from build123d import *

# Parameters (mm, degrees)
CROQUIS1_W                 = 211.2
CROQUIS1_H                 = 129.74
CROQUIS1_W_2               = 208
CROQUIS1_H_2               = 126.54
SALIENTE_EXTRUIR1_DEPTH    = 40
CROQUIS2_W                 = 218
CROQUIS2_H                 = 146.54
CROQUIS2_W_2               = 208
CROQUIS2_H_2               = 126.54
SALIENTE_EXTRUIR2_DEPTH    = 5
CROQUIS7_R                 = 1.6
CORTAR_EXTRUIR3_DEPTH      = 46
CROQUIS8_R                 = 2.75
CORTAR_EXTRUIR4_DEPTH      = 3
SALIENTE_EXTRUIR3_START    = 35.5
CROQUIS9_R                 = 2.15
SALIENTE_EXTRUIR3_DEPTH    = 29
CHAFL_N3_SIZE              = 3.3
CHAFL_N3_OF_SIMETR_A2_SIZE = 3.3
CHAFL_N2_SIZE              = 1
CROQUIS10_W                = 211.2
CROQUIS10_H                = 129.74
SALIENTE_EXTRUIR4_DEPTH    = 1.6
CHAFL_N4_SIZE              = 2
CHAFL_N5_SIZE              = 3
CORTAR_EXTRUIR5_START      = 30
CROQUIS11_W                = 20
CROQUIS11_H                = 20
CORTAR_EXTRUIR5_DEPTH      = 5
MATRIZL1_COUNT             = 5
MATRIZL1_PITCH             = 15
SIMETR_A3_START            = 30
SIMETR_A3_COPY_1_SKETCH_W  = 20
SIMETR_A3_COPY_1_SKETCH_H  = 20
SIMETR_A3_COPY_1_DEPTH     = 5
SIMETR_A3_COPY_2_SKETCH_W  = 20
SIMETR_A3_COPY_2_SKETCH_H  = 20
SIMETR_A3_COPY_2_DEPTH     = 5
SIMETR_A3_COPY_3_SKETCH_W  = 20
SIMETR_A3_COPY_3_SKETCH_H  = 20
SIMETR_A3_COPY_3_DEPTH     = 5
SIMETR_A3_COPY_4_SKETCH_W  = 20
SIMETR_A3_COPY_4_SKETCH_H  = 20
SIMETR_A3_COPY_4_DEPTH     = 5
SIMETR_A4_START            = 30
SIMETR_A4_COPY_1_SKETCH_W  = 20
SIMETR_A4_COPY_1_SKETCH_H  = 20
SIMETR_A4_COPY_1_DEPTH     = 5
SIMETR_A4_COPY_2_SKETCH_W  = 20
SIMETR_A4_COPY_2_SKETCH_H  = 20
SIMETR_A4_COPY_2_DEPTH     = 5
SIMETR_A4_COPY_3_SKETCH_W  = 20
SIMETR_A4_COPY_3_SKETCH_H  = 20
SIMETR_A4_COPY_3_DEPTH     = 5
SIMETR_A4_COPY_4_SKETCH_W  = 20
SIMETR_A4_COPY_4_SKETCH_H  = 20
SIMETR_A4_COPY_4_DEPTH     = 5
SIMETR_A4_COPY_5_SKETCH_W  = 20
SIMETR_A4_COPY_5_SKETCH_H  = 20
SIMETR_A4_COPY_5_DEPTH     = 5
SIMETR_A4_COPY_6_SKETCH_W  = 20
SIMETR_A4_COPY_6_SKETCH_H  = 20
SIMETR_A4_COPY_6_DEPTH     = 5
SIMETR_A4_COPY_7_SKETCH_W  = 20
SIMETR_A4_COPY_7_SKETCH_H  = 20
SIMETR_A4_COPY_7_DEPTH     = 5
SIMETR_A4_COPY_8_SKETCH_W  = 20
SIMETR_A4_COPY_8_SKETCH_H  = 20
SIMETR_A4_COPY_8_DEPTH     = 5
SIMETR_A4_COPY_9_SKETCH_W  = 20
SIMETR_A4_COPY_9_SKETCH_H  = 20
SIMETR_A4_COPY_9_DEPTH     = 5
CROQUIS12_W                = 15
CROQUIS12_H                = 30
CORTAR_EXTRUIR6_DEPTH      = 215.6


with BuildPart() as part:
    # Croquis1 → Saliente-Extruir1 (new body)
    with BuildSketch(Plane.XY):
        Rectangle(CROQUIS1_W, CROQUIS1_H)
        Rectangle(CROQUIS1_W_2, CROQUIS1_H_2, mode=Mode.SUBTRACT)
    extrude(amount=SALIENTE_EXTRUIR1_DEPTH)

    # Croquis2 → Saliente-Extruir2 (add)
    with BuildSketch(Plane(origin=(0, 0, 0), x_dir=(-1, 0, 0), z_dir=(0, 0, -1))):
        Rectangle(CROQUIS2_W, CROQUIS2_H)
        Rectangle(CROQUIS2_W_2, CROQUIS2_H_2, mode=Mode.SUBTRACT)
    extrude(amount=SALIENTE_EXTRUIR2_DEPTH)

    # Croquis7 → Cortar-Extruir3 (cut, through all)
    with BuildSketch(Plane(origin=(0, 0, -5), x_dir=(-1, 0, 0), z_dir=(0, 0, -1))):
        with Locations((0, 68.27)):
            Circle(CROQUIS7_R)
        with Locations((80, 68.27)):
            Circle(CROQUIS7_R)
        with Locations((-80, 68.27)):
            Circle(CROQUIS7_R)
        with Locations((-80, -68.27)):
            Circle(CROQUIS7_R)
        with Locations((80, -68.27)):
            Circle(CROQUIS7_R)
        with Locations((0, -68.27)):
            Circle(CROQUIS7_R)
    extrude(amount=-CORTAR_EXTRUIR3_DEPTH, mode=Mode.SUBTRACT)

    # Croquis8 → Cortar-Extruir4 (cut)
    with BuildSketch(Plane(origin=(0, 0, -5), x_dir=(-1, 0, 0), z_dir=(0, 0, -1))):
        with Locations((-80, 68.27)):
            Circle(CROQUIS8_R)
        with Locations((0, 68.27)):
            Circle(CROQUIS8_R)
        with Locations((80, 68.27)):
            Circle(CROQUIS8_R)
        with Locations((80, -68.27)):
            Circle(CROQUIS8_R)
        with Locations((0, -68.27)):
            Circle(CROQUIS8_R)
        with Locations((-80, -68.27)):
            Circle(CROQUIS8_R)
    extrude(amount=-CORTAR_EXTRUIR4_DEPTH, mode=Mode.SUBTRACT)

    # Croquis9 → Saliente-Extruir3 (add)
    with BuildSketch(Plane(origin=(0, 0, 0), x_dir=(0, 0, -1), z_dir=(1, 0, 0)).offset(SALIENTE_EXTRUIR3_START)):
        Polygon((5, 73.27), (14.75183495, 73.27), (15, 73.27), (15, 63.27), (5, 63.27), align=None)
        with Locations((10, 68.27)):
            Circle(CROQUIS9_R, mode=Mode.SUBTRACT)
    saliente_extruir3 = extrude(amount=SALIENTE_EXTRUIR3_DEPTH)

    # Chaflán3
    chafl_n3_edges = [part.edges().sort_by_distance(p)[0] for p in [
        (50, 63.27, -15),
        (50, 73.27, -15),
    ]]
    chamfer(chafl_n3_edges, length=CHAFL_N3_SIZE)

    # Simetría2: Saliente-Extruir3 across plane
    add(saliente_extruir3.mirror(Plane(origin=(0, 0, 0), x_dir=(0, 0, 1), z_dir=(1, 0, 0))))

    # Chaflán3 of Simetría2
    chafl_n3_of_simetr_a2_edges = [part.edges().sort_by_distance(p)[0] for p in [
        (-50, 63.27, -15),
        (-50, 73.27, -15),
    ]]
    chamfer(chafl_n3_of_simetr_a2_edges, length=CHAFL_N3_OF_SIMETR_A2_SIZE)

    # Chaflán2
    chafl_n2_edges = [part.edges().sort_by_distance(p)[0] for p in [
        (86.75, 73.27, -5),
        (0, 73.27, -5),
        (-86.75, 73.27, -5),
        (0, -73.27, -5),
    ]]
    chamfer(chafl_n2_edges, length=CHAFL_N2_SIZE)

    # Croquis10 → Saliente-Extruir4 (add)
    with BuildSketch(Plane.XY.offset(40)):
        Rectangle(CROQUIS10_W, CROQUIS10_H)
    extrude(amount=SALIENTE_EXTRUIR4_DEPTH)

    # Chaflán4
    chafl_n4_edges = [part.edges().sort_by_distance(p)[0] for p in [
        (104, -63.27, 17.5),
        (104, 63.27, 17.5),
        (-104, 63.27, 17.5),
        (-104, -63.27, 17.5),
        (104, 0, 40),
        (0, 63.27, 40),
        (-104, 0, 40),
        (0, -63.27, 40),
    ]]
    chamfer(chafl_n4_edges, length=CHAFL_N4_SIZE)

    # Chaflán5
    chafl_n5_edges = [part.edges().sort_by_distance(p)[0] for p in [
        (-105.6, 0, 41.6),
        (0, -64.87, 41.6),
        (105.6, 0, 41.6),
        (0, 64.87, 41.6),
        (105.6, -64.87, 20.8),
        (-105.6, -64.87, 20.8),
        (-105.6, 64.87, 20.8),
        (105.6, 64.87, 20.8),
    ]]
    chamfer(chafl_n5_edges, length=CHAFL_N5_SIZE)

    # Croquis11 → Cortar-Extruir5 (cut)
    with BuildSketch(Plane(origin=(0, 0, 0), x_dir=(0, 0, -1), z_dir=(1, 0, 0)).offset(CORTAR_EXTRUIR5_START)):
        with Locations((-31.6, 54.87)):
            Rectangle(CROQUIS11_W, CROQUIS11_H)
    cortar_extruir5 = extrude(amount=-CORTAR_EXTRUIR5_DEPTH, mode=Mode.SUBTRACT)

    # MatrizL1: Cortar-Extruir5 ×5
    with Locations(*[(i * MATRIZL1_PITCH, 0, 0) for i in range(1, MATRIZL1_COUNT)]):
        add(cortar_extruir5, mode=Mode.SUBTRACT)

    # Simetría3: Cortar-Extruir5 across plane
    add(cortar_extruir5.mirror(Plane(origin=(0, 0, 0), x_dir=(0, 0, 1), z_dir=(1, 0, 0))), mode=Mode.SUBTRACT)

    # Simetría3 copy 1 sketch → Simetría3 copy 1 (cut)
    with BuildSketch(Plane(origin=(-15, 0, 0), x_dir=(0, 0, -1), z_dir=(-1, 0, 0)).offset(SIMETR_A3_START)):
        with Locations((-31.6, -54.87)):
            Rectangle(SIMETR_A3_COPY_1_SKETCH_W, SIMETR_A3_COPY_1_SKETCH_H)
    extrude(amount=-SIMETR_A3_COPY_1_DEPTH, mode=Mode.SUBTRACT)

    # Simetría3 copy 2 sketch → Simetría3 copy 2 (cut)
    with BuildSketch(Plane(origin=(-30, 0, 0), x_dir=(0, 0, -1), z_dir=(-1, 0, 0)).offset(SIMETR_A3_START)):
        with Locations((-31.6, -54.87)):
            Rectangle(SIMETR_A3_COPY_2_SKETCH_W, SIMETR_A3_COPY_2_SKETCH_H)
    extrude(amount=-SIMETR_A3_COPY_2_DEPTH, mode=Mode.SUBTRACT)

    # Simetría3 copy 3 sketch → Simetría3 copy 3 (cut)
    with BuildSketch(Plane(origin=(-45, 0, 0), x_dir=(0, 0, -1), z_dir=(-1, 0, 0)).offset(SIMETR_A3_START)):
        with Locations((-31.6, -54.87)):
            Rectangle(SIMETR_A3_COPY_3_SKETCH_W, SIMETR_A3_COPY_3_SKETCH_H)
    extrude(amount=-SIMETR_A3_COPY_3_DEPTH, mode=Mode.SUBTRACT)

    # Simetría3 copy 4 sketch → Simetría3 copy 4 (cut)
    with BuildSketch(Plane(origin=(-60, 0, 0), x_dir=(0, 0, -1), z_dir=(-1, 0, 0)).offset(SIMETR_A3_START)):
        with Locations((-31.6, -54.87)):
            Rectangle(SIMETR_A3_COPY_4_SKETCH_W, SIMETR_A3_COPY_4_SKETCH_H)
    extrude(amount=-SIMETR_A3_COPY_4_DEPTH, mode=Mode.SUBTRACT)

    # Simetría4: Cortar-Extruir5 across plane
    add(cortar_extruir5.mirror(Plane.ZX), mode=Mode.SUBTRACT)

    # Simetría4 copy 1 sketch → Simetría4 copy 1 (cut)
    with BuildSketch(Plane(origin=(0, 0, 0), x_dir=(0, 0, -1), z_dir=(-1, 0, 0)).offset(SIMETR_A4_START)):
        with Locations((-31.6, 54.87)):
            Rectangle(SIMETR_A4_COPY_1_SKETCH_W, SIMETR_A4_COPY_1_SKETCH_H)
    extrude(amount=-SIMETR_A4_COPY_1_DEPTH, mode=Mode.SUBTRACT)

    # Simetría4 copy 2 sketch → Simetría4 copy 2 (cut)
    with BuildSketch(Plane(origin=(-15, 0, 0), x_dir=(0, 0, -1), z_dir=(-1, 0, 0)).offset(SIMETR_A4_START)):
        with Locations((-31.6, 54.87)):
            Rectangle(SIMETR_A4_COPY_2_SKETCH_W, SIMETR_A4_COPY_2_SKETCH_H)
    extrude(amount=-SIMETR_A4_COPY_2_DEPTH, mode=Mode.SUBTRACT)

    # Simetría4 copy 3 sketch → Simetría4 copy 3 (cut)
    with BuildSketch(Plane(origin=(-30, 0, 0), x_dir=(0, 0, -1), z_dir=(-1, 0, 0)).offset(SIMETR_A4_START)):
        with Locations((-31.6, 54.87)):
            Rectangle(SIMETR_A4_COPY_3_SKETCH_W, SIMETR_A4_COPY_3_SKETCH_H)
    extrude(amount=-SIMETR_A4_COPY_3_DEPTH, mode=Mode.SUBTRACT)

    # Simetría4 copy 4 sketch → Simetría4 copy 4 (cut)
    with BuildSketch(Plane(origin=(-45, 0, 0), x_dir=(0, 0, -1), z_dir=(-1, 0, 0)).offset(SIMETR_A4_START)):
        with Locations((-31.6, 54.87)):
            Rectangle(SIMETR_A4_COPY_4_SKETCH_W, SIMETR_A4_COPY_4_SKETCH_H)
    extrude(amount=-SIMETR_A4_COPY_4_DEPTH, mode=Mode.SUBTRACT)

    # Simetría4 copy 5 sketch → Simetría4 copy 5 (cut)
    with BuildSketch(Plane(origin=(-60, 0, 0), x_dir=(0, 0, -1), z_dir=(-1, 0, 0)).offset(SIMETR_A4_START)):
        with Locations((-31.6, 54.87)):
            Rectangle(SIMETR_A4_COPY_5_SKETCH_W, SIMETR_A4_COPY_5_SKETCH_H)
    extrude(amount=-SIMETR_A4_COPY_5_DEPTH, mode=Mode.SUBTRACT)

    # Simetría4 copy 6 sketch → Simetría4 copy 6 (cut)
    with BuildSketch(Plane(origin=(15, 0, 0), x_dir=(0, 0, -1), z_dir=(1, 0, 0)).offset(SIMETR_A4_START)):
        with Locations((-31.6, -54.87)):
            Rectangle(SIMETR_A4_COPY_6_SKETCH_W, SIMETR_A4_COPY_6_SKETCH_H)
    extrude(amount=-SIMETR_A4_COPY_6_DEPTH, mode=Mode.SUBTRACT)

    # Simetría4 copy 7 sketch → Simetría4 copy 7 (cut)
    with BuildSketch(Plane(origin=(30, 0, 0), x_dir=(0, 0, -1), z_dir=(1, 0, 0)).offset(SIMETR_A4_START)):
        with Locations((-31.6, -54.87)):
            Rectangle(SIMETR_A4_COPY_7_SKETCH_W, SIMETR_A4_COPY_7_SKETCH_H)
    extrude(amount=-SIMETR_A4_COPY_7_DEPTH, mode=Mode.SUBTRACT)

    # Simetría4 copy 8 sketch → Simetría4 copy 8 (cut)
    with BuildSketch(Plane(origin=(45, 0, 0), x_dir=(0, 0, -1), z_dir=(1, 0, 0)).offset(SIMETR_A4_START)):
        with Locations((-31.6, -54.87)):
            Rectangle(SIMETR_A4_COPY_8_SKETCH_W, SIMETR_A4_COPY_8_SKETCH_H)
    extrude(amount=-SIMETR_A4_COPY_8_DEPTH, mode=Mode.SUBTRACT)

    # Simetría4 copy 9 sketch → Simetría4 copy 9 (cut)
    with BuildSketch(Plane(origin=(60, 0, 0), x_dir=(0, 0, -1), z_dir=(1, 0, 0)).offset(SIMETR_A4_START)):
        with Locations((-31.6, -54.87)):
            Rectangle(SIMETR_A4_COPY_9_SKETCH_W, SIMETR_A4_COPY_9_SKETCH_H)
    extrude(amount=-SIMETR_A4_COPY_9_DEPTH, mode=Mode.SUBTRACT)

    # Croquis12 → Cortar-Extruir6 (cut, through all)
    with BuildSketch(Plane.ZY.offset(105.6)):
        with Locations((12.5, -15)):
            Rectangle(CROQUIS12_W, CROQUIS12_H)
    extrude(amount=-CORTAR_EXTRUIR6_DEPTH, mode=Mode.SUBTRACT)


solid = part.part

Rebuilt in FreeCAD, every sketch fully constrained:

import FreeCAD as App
import Part
import Sketcher

V = App.Vector


def edges_at(feature, points):
    """Names of the edges that pass closest to the given points."""
    edges = feature.Shape.Edges
    near = lambda p: min(range(len(edges)), key=lambda i: edges[i].distToShape(Part.Vertex(*p))[0])
    return sorted({f"Edge{near(p) + 1}" for p in points})


def add_polygon(sketch, points):
    """Adds a closed chain of lines whose ends are joined by coincident constraints."""
    first, n = sketch.GeometryCount, len(points)
    for a, b in zip(points, points[1:] + points[:1]):
        sketch.addGeometry(Part.LineSegment(App.Vector(*a, 0), App.Vector(*b, 0)), False)
    for i in range(n):
        sketch.addConstraint(Sketcher.Constraint("Coincident", first + i, 2, first + (i + 1) % n, 1))

doc = App.newDocument("Part")
body = doc.addObject("PartDesign::Body", "Body")

sketch1 = body.newObject("Sketcher::SketchObject", "Sketch")
sketch1.AttachmentSupport = (doc.getObject("XY_Plane"), [""])
sketch1.MapMode = "FlatFace"
add_polygon(sketch1, [(-106, 65), (-106, -65), (106, -65), (106, 65)])
add_polygon(sketch1, [(104, -63), (-104, -63), (-104, 63), (104, 63)])
sketch1.addConstraint(Sketcher.Constraint("Vertical", 0))
sketch1.addConstraint(Sketcher.Constraint("Horizontal", 1))
sketch1.addConstraint(Sketcher.Constraint("Vertical", 2))
sketch1.addConstraint(Sketcher.Constraint("Horizontal", 3))
sketch1.addConstraint(Sketcher.Constraint("Horizontal", 4))
sketch1.addConstraint(Sketcher.Constraint("Vertical", 5))
sketch1.addConstraint(Sketcher.Constraint("Horizontal", 6))
sketch1.addConstraint(Sketcher.Constraint("Vertical", 7))
sketch1.addConstraint(Sketcher.Constraint("Symmetric", 0, 2, 2, 2, -1, 1))
sketch1.addConstraint(Sketcher.Constraint("Symmetric", 4, 2, 6, 2, -1, 1))
sketch1.addConstraint(Sketcher.Constraint("DistanceX", 4, 2, 4, 1, 208.0))
sketch1.addConstraint(Sketcher.Constraint("DistanceX", 1, 1, 1, 2, 211.2))
sketch1.addConstraint(Sketcher.Constraint("DistanceY", 0, 2, 0, 1, 129.74))
sketch1.addConstraint(Sketcher.Constraint("DistanceY", 5, 1, 5, 2, 126.54))
pad1 = body.newObject("PartDesign::Pad", "Pad")
pad1.Profile = sketch1
pad1.Length = 40

sketch2 = body.newObject("Sketcher::SketchObject", "Sketch001")
sketch2.AttachmentSupport = (doc.getObject("XY_Plane"), [""])
sketch2.MapMode = "FlatFace"
add_polygon(sketch2, [(109, 73), (109, -73), (-109, -73), (-109, 73)])
add_polygon(sketch2, [(-104, -63), (104, -63), (104, 63), (-104, 63)])
sketch2.addConstraint(Sketcher.Constraint("Vertical", 0))
sketch2.addConstraint(Sketcher.Constraint("Horizontal", 1))
sketch2.addConstraint(Sketcher.Constraint("Vertical", 2))
sketch2.addConstraint(Sketcher.Constraint("Horizontal", 3))
sketch2.addConstraint(Sketcher.Constraint("Horizontal", 4))
sketch2.addConstraint(Sketcher.Constraint("Vertical", 5))
sketch2.addConstraint(Sketcher.Constraint("Horizontal", 6))
sketch2.addConstraint(Sketcher.Constraint("Vertical", 7))
sketch2.addConstraint(Sketcher.Constraint("Symmetric", 0, 2, 2, 2, -1, 1))
sketch2.addConstraint(Sketcher.Constraint("Symmetric", 4, 2, 6, 2, -1, 1))
sketch2.addConstraint(Sketcher.Constraint("DistanceX", 1, 2, 1, 1, 218.0))
sketch2.addConstraint(Sketcher.Constraint("DistanceX", 4, 1, 4, 2, 208.0))
sketch2.addConstraint(Sketcher.Constraint("DistanceY", 0, 2, 4, 2, 10.0))
sketch2.addConstraint(Sketcher.Constraint("DistanceY", 0, 2, 0, 1, 146.54))
pad2 = body.newObject("PartDesign::Pad", "Pad001")
pad2.Profile = sketch2
pad2.Length = 5
pad2.Reversed = True

sketch3 = body.newObject("Sketcher::SketchObject", "Sketch002")
sketch3.AttachmentSupport = (doc.getObject("XY_Plane"), [""])
sketch3.MapMode = "FlatFace"
sketch3.AttachmentOffset = App.Placement(V(0, 0, -5), App.Rotation())
sketch3.addGeometry(Part.Circle(V(0, 68.3, 0), V(0, 0, 1), 1.6), False)
sketch3.addGeometry(Part.Circle(V(-80, 68.3, 0), V(0, 0, 1), 1.6), False)
sketch3.addGeometry(Part.Circle(V(80, 68.3, 0), V(0, 0, 1), 1.6), False)
sketch3.addGeometry(Part.Circle(V(80, -68.3, 0), V(0, 0, 1), 1.6), False)
sketch3.addGeometry(Part.Circle(V(-80, -68.3, 0), V(0, 0, 1), 1.6), False)
sketch3.addGeometry(Part.Circle(V(0, -68.3, 0), V(0, 0, 1), 1.6), False)
sketch3.addConstraint(Sketcher.Constraint("Equal", 0, 1))
sketch3.addConstraint(Sketcher.Constraint("Equal", 1, 2))
sketch3.addConstraint(Sketcher.Constraint("Equal", 2, 3))
sketch3.addConstraint(Sketcher.Constraint("Equal", 3, 4))
sketch3.addConstraint(Sketcher.Constraint("Equal", 4, 5))
sketch3.addConstraint(Sketcher.Constraint("Symmetric", 1, 3, 3, 3, -1, 1))
sketch3.addConstraint(Sketcher.Constraint("Symmetric", 2, 3, 4, 3, -1, 1))
sketch3.addConstraint(Sketcher.Constraint("Symmetric", 0, 3, 5, 3, -1, 1))
sketch3.addConstraint(Sketcher.Constraint("Symmetric", 1, 3, 2, 3, -2))
sketch3.addConstraint(Sketcher.Constraint("PointOnObject", 0, 3, -2))
sketch3.addConstraint(Sketcher.Constraint("Horizontal", 0, 3, 1, 3))
sketch3.addConstraint(Sketcher.Constraint("Diameter", 0, 3.2))
sketch3.addConstraint(Sketcher.Constraint("DistanceX", 1, 3, -1, 1, 80.0))
sketch3.addConstraint(Sketcher.Constraint("DistanceY", -1, 1, 0, 3, 68.27))
pocket1 = body.newObject("PartDesign::Pocket", "Pocket")
pocket1.Profile = sketch3
pocket1.Type = "ThroughAll"
pocket1.Reversed = True

sketch4 = body.newObject("Sketcher::SketchObject", "Sketch003")
sketch4.AttachmentSupport = (doc.getObject("XY_Plane"), [""])
sketch4.MapMode = "FlatFace"
sketch4.AttachmentOffset = App.Placement(V(0, 0, -5), App.Rotation())
sketch4.addGeometry(Part.Circle(V(80, 68.3, 0), V(0, 0, 1), 2.8), False)
sketch4.addGeometry(Part.Circle(V(0, 68.3, 0), V(0, 0, 1), 2.8), False)
sketch4.addGeometry(Part.Circle(V(-80, 68.3, 0), V(0, 0, 1), 2.8), False)
sketch4.addGeometry(Part.Circle(V(-80, -68.3, 0), V(0, 0, 1), 2.8), False)
sketch4.addGeometry(Part.Circle(V(0, -68.3, 0), V(0, 0, 1), 2.8), False)
sketch4.addGeometry(Part.Circle(V(80, -68.3, 0), V(0, 0, 1), 2.8), False)
sketch4.addConstraint(Sketcher.Constraint("Equal", 0, 1))
sketch4.addConstraint(Sketcher.Constraint("Equal", 1, 2))
sketch4.addConstraint(Sketcher.Constraint("Equal", 2, 3))
sketch4.addConstraint(Sketcher.Constraint("Equal", 3, 4))
sketch4.addConstraint(Sketcher.Constraint("Equal", 4, 5))
sketch4.addConstraint(Sketcher.Constraint("Symmetric", 0, 3, 3, 3, -1, 1))
sketch4.addConstraint(Sketcher.Constraint("Symmetric", 1, 3, 4, 3, -1, 1))
sketch4.addConstraint(Sketcher.Constraint("Symmetric", 2, 3, 5, 3, -1, 1))
sketch4.addConstraint(Sketcher.Constraint("Symmetric", 0, 3, 2, 3, -2))
sketch4.addConstraint(Sketcher.Constraint("PointOnObject", 1, 3, -2))
sketch4.addConstraint(Sketcher.Constraint("Horizontal", 0, 3, 1, 3))
sketch4.addConstraint(Sketcher.Constraint("Diameter", 0, 5.5))
sketch4.addConstraint(Sketcher.Constraint("DistanceX", -1, 1, 0, 3, 80.0))
sketch4.addConstraint(Sketcher.Constraint("DistanceY", -1, 1, 0, 3, 68.27))
pocket2 = body.newObject("PartDesign::Pocket", "Pocket001")
pocket2.Profile = sketch4
pocket2.Length = 3
pocket2.Reversed = True

sketch5 = body.newObject("Sketcher::SketchObject", "Sketch004")
sketch5.AttachmentSupport = (doc.getObject("YZ_Plane"), [""])
sketch5.MapMode = "FlatFace"
sketch5.AttachmentOffset = App.Placement(V(0, 0, 35.5), App.Rotation())
add_polygon(sketch5, [(73.3, -15), (73.3, -5), (63.3, -5), (63.3, -15)])
sketch5.addGeometry(Part.Circle(V(68.3, -10, 0), V(0, 0, 1), 2.1), False)
sketch5.addConstraint(Sketcher.Constraint("Vertical", 0))
sketch5.addConstraint(Sketcher.Constraint("Horizontal", 1))
sketch5.addConstraint(Sketcher.Constraint("Vertical", 2))
sketch5.addConstraint(Sketcher.Constraint("Horizontal", 3))
sketch5.addConstraint(Sketcher.Constraint("Equal", 3, 0))
sketch5.addConstraint(Sketcher.Constraint("Diameter", 4, 4.3))
sketch5.addConstraint(Sketcher.Constraint("DistanceX", 1, 2, 1, 1, 10.0))
sketch5.addConstraint(Sketcher.Constraint("DistanceY", 4, 3, -1, 1, 10.0))
sketch5.addConstraint(Sketcher.Constraint("DistanceY", 0, 2, -1, 1, 5.0))
sketch5.addConstraint(Sketcher.Constraint("DistanceX", 4, 3, 0, 2, 5.0))
sketch5.addConstraint(Sketcher.Constraint("DistanceX", -1, 1, 4, 3, 68.27))
pad3 = body.newObject("PartDesign::Pad", "Pad002")
pad3.Profile = sketch5
pad3.Length = 29
doc.recompute()

chamfer = body.newObject("PartDesign::Chamfer", "Chamfer")
chamfer.Base = (pad3, edges_at(pad3, [(50, 63.27, -15), (50, 73.27, -15)]))
chamfer.Size = 3.3
doc.recompute()

mirrored = body.newObject("PartDesign::Mirrored", "Mirrored")
mirrored.Originals = [pad3]
mirrored.MirrorPlane = (doc.getObject("YZ_Plane"), [""])
body.Tip = mirrored
doc.recompute()

chamfer2 = body.newObject("PartDesign::Chamfer", "Chamfer001")
chamfer2.Base = (mirrored, edges_at(mirrored, [(-50, 63.27, -15), (-50, 73.27, -15)]))
chamfer2.Size = 3.3
doc.recompute()

chamfer3 = body.newObject("PartDesign::Chamfer", "Chamfer002")
chamfer3.Base = (chamfer2, edges_at(chamfer2, [
    (86.75, 73.27, -5),
    (0, 73.27, -5),
    (-86.75, 73.27, -5),
    (0, -73.27, -5),
]))
chamfer3.Size = 1

sketch6 = body.newObject("Sketcher::SketchObject", "Sketch005")
sketch6.AttachmentSupport = (doc.getObject("XY_Plane"), [""])
sketch6.MapMode = "FlatFace"
sketch6.AttachmentOffset = App.Placement(V(0, 0, 40), App.Rotation())
add_polygon(sketch6, [(-106, 65), (-106, -65), (106, -65), (106, 65)])
sketch6.addConstraint(Sketcher.Constraint("Vertical", 0))
sketch6.addConstraint(Sketcher.Constraint("Horizontal", 1))
sketch6.addConstraint(Sketcher.Constraint("Vertical", 2))
sketch6.addConstraint(Sketcher.Constraint("Horizontal", 3))
sketch6.addConstraint(Sketcher.Constraint("Symmetric", 0, 2, 2, 2, -1, 1))
sketch6.addConstraint(Sketcher.Constraint("DistanceX", 1, 1, 1, 2, 211.2))
sketch6.addConstraint(Sketcher.Constraint("DistanceY", 0, 2, 0, 1, 129.74))
pad4 = body.newObject("PartDesign::Pad", "Pad003")
pad4.Profile = sketch6
pad4.Length = 1.6
doc.recompute()

chamfer4 = body.newObject("PartDesign::Chamfer", "Chamfer003")
chamfer4.Base = (pad4, edges_at(pad4, [
    (104, -63.27, 17.5),
    (104, 63.27, 17.5),
    (-104, 63.27, 17.5),
    (-104, -63.27, 17.5),
    (104, 0, 40),
    (0, 63.27, 40),
    (-104, 0, 40),
    (0, -63.27, 40),
]))
chamfer4.Size = 2
doc.recompute()

chamfer5 = body.newObject("PartDesign::Chamfer", "Chamfer004")
chamfer5.Base = (chamfer4, edges_at(chamfer4, [
    (-105.6, 0, 41.6),
    (0, -64.87, 41.6),
    (105.6, 0, 41.6),
    (0, 64.87, 41.6),
    (105.6, -64.87, 20.8),
    (-105.6, -64.87, 20.8),
    (-105.6, 64.87, 20.8),
    (105.6, 64.87, 20.8),
]))
chamfer5.Size = 3

sketch7 = body.newObject("Sketcher::SketchObject", "Sketch006")
sketch7.AttachmentSupport = (doc.getObject("YZ_Plane"), [""])
sketch7.MapMode = "FlatFace"
sketch7.AttachmentOffset = App.Placement(V(0, 0, 30), App.Rotation())
add_polygon(sketch7, [(65, 42), (45, 42), (45, 22), (65, 22)])
sketch7.addConstraint(Sketcher.Constraint("Horizontal", 0))
sketch7.addConstraint(Sketcher.Constraint("Vertical", 1))
sketch7.addConstraint(Sketcher.Constraint("Horizontal", 2))
sketch7.addConstraint(Sketcher.Constraint("Vertical", 3))
sketch7.addConstraint(Sketcher.Constraint("Equal", 2, 1))
sketch7.addConstraint(Sketcher.Constraint("DistanceX", 0, 2, 0, 1, 20.0))
sketch7.addConstraint(Sketcher.Constraint("DistanceY", -1, 1, 0, 2, 41.6))
sketch7.addConstraint(Sketcher.Constraint("DistanceX", -1, 1, 0, 2, 44.87))
pocket3 = body.newObject("PartDesign::Pocket", "Pocket002")
pocket3.Profile = sketch7
pocket3.Length = 5
doc.recompute()

linearpattern = body.newObject("PartDesign::LinearPattern", "LinearPattern")
linearpattern.Originals = [pocket3]
linearpattern.Direction = (doc.getObject("X_Axis"), [""])
linearpattern.Mode = "offset"
linearpattern.Offset = 15
linearpattern.Occurrences = 5
body.Tip = linearpattern
doc.recompute()

mirrored2 = body.newObject("PartDesign::Mirrored", "Mirrored001")
mirrored2.Originals = [pocket3]
mirrored2.MirrorPlane = (doc.getObject("YZ_Plane"), [""])
body.Tip = mirrored2

sketch8 = body.newObject("Sketcher::SketchObject", "Sketch007")
sketch8.AttachmentSupport = (doc.getObject("YZ_Plane"), [""])
sketch8.MapMode = "FlatFace"
sketch8.AttachmentOffset = App.Placement(V(0, 0, -45), App.Rotation())
add_polygon(sketch8, [(45, 42), (65, 42), (65, 22), (45, 22)])
sketch8.addConstraint(Sketcher.Constraint("Horizontal", 0))
sketch8.addConstraint(Sketcher.Constraint("Vertical", 1))
sketch8.addConstraint(Sketcher.Constraint("Horizontal", 2))
sketch8.addConstraint(Sketcher.Constraint("Vertical", 3))
sketch8.addConstraint(Sketcher.Constraint("Equal", 2, 1))
sketch8.addConstraint(Sketcher.Constraint("DistanceX", 0, 1, 0, 2, 20.0))
sketch8.addConstraint(Sketcher.Constraint("DistanceY", -1, 1, 0, 2, 41.6))
sketch8.addConstraint(Sketcher.Constraint("DistanceX", -1, 1, 0, 2, 64.87))
pocket4 = body.newObject("PartDesign::Pocket", "Pocket003")
pocket4.Profile = sketch8
pocket4.Length = 5
pocket4.Reversed = True

sketch9 = body.newObject("Sketcher::SketchObject", "Sketch008")
sketch9.AttachmentSupport = (doc.getObject("YZ_Plane"), [""])
sketch9.MapMode = "FlatFace"
sketch9.AttachmentOffset = App.Placement(V(0, 0, -60), App.Rotation())
add_polygon(sketch9, [(45, 42), (65, 42), (65, 22), (45, 22)])
sketch9.addConstraint(Sketcher.Constraint("Horizontal", 0))
sketch9.addConstraint(Sketcher.Constraint("Vertical", 1))
sketch9.addConstraint(Sketcher.Constraint("Horizontal", 2))
sketch9.addConstraint(Sketcher.Constraint("Vertical", 3))
sketch9.addConstraint(Sketcher.Constraint("Equal", 2, 1))
sketch9.addConstraint(Sketcher.Constraint("DistanceX", 0, 1, 0, 2, 20.0))
sketch9.addConstraint(Sketcher.Constraint("DistanceY", -1, 1, 0, 2, 41.6))
sketch9.addConstraint(Sketcher.Constraint("DistanceX", -1, 1, 0, 2, 64.87))
pocket5 = body.newObject("PartDesign::Pocket", "Pocket004")
pocket5.Profile = sketch9
pocket5.Length = 5
pocket5.Reversed = True

sketch10 = body.newObject("Sketcher::SketchObject", "Sketch009")
sketch10.AttachmentSupport = (doc.getObject("YZ_Plane"), [""])
sketch10.MapMode = "FlatFace"
sketch10.AttachmentOffset = App.Placement(V(0, 0, -75), App.Rotation())
add_polygon(sketch10, [(45, 42), (65, 42), (65, 22), (45, 22)])
sketch10.addConstraint(Sketcher.Constraint("Horizontal", 0))
sketch10.addConstraint(Sketcher.Constraint("Vertical", 1))
sketch10.addConstraint(Sketcher.Constraint("Horizontal", 2))
sketch10.addConstraint(Sketcher.Constraint("Vertical", 3))
sketch10.addConstraint(Sketcher.Constraint("Equal", 2, 1))
sketch10.addConstraint(Sketcher.Constraint("DistanceX", 0, 1, 0, 2, 20.0))
sketch10.addConstraint(Sketcher.Constraint("DistanceY", -1, 1, 0, 2, 41.6))
sketch10.addConstraint(Sketcher.Constraint("DistanceX", -1, 1, 0, 2, 64.87))
pocket6 = body.newObject("PartDesign::Pocket", "Pocket005")
pocket6.Profile = sketch10
pocket6.Length = 5
pocket6.Reversed = True

sketch11 = body.newObject("Sketcher::SketchObject", "Sketch010")
sketch11.AttachmentSupport = (doc.getObject("YZ_Plane"), [""])
sketch11.MapMode = "FlatFace"
sketch11.AttachmentOffset = App.Placement(V(0, 0, -90), App.Rotation())
add_polygon(sketch11, [(45, 42), (65, 42), (65, 22), (45, 22)])
sketch11.addConstraint(Sketcher.Constraint("Horizontal", 0))
sketch11.addConstraint(Sketcher.Constraint("Vertical", 1))
sketch11.addConstraint(Sketcher.Constraint("Horizontal", 2))
sketch11.addConstraint(Sketcher.Constraint("Vertical", 3))
sketch11.addConstraint(Sketcher.Constraint("Equal", 2, 1))
sketch11.addConstraint(Sketcher.Constraint("DistanceX", 0, 1, 0, 2, 20.0))
sketch11.addConstraint(Sketcher.Constraint("DistanceY", -1, 1, 0, 2, 41.6))
sketch11.addConstraint(Sketcher.Constraint("DistanceX", -1, 1, 0, 2, 64.87))
pocket7 = body.newObject("PartDesign::Pocket", "Pocket006")
pocket7.Profile = sketch11
pocket7.Length = 5
pocket7.Reversed = True
doc.recompute()

mirrored3 = body.newObject("PartDesign::Mirrored", "Mirrored002")
mirrored3.Originals = [pocket3]
mirrored3.MirrorPlane = (doc.getObject("XZ_Plane"), [""])
body.Tip = mirrored3

sketch12 = body.newObject("Sketcher::SketchObject", "Sketch011")
sketch12.AttachmentSupport = (doc.getObject("YZ_Plane"), [""])
sketch12.MapMode = "FlatFace"
sketch12.AttachmentOffset = App.Placement(V(0, 0, -30), App.Rotation())
add_polygon(sketch12, [(-65, 42), (-45, 42), (-45, 22), (-65, 22)])
sketch12.addConstraint(Sketcher.Constraint("Horizontal", 0))
sketch12.addConstraint(Sketcher.Constraint("Vertical", 1))
sketch12.addConstraint(Sketcher.Constraint("Horizontal", 2))
sketch12.addConstraint(Sketcher.Constraint("Vertical", 3))
sketch12.addConstraint(Sketcher.Constraint("Equal", 2, 1))
sketch12.addConstraint(Sketcher.Constraint("DistanceX", 0, 1, 0, 2, 20.0))
sketch12.addConstraint(Sketcher.Constraint("DistanceY", -1, 1, 0, 2, 41.6))
sketch12.addConstraint(Sketcher.Constraint("DistanceX", 0, 2, -1, 1, 44.87))
pocket8 = body.newObject("PartDesign::Pocket", "Pocket007")
pocket8.Profile = sketch12
pocket8.Length = 5
pocket8.Reversed = True

sketch13 = body.newObject("Sketcher::SketchObject", "Sketch012")
sketch13.AttachmentSupport = (doc.getObject("YZ_Plane"), [""])
sketch13.MapMode = "FlatFace"
sketch13.AttachmentOffset = App.Placement(V(0, 0, -45), App.Rotation())
add_polygon(sketch13, [(-65, 42), (-45, 42), (-45, 22), (-65, 22)])
sketch13.addConstraint(Sketcher.Constraint("Horizontal", 0))
sketch13.addConstraint(Sketcher.Constraint("Vertical", 1))
sketch13.addConstraint(Sketcher.Constraint("Horizontal", 2))
sketch13.addConstraint(Sketcher.Constraint("Vertical", 3))
sketch13.addConstraint(Sketcher.Constraint("Equal", 2, 1))
sketch13.addConstraint(Sketcher.Constraint("DistanceX", 0, 1, 0, 2, 20.0))
sketch13.addConstraint(Sketcher.Constraint("DistanceY", -1, 1, 0, 2, 41.6))
sketch13.addConstraint(Sketcher.Constraint("DistanceX", 0, 2, -1, 1, 44.87))
pocket9 = body.newObject("PartDesign::Pocket", "Pocket008")
pocket9.Profile = sketch13
pocket9.Length = 5
pocket9.Reversed = True

sketch14 = body.newObject("Sketcher::SketchObject", "Sketch013")
sketch14.AttachmentSupport = (doc.getObject("YZ_Plane"), [""])
sketch14.MapMode = "FlatFace"
sketch14.AttachmentOffset = App.Placement(V(0, 0, -60), App.Rotation())
add_polygon(sketch14, [(-65, 42), (-45, 42), (-45, 22), (-65, 22)])
sketch14.addConstraint(Sketcher.Constraint("Horizontal", 0))
sketch14.addConstraint(Sketcher.Constraint("Vertical", 1))
sketch14.addConstraint(Sketcher.Constraint("Horizontal", 2))
sketch14.addConstraint(Sketcher.Constraint("Vertical", 3))
sketch14.addConstraint(Sketcher.Constraint("Equal", 2, 1))
sketch14.addConstraint(Sketcher.Constraint("DistanceX", 0, 1, 0, 2, 20.0))
sketch14.addConstraint(Sketcher.Constraint("DistanceY", -1, 1, 0, 2, 41.6))
sketch14.addConstraint(Sketcher.Constraint("DistanceX", 0, 2, -1, 1, 44.87))
pocket10 = body.newObject("PartDesign::Pocket", "Pocket009")
pocket10.Profile = sketch14
pocket10.Length = 5
pocket10.Reversed = True

sketch15 = body.newObject("Sketcher::SketchObject", "Sketch014")
sketch15.AttachmentSupport = (doc.getObject("YZ_Plane"), [""])
sketch15.MapMode = "FlatFace"
sketch15.AttachmentOffset = App.Placement(V(0, 0, -75), App.Rotation())
add_polygon(sketch15, [(-65, 42), (-45, 42), (-45, 22), (-65, 22)])
sketch15.addConstraint(Sketcher.Constraint("Horizontal", 0))
sketch15.addConstraint(Sketcher.Constraint("Vertical", 1))
sketch15.addConstraint(Sketcher.Constraint("Horizontal", 2))
sketch15.addConstraint(Sketcher.Constraint("Vertical", 3))
sketch15.addConstraint(Sketcher.Constraint("Equal", 2, 1))
sketch15.addConstraint(Sketcher.Constraint("DistanceX", 0, 1, 0, 2, 20.0))
sketch15.addConstraint(Sketcher.Constraint("DistanceY", -1, 1, 0, 2, 41.6))
sketch15.addConstraint(Sketcher.Constraint("DistanceX", 0, 2, -1, 1, 44.87))
pocket11 = body.newObject("PartDesign::Pocket", "Pocket010")
pocket11.Profile = sketch15
pocket11.Length = 5
pocket11.Reversed = True

sketch16 = body.newObject("Sketcher::SketchObject", "Sketch015")
sketch16.AttachmentSupport = (doc.getObject("YZ_Plane"), [""])
sketch16.MapMode = "FlatFace"
sketch16.AttachmentOffset = App.Placement(V(0, 0, -90), App.Rotation())
add_polygon(sketch16, [(-65, 42), (-45, 42), (-45, 22), (-65, 22)])
sketch16.addConstraint(Sketcher.Constraint("Horizontal", 0))
sketch16.addConstraint(Sketcher.Constraint("Vertical", 1))
sketch16.addConstraint(Sketcher.Constraint("Horizontal", 2))
sketch16.addConstraint(Sketcher.Constraint("Vertical", 3))
sketch16.addConstraint(Sketcher.Constraint("Equal", 2, 1))
sketch16.addConstraint(Sketcher.Constraint("DistanceX", 0, 1, 0, 2, 20.0))
sketch16.addConstraint(Sketcher.Constraint("DistanceY", -1, 1, 0, 2, 41.6))
sketch16.addConstraint(Sketcher.Constraint("DistanceX", 0, 2, -1, 1, 44.87))
pocket12 = body.newObject("PartDesign::Pocket", "Pocket011")
pocket12.Profile = sketch16
pocket12.Length = 5
pocket12.Reversed = True

sketch17 = body.newObject("Sketcher::SketchObject", "Sketch016")
sketch17.AttachmentSupport = (doc.getObject("YZ_Plane"), [""])
sketch17.MapMode = "FlatFace"
sketch17.AttachmentOffset = App.Placement(V(0, 0, 45), App.Rotation())
add_polygon(sketch17, [(-45, 42), (-65, 42), (-65, 22), (-45, 22)])
sketch17.addConstraint(Sketcher.Constraint("Horizontal", 0))
sketch17.addConstraint(Sketcher.Constraint("Vertical", 1))
sketch17.addConstraint(Sketcher.Constraint("Horizontal", 2))
sketch17.addConstraint(Sketcher.Constraint("Vertical", 3))
sketch17.addConstraint(Sketcher.Constraint("Equal", 2, 1))
sketch17.addConstraint(Sketcher.Constraint("DistanceX", 0, 2, 0, 1, 20.0))
sketch17.addConstraint(Sketcher.Constraint("DistanceY", -1, 1, 0, 2, 41.6))
sketch17.addConstraint(Sketcher.Constraint("DistanceX", 0, 2, -1, 1, 64.87))
pocket13 = body.newObject("PartDesign::Pocket", "Pocket012")
pocket13.Profile = sketch17
pocket13.Length = 5

sketch18 = body.newObject("Sketcher::SketchObject", "Sketch017")
sketch18.AttachmentSupport = (doc.getObject("YZ_Plane"), [""])
sketch18.MapMode = "FlatFace"
sketch18.AttachmentOffset = App.Placement(V(0, 0, 60), App.Rotation())
add_polygon(sketch18, [(-45, 42), (-65, 42), (-65, 22), (-45, 22)])
sketch18.addConstraint(Sketcher.Constraint("Horizontal", 0))
sketch18.addConstraint(Sketcher.Constraint("Vertical", 1))
sketch18.addConstraint(Sketcher.Constraint("Horizontal", 2))
sketch18.addConstraint(Sketcher.Constraint("Vertical", 3))
sketch18.addConstraint(Sketcher.Constraint("Equal", 2, 1))
sketch18.addConstraint(Sketcher.Constraint("DistanceX", 0, 2, 0, 1, 20.0))
sketch18.addConstraint(Sketcher.Constraint("DistanceY", -1, 1, 0, 2, 41.6))
sketch18.addConstraint(Sketcher.Constraint("DistanceX", 0, 2, -1, 1, 64.87))
pocket14 = body.newObject("PartDesign::Pocket", "Pocket013")
pocket14.Profile = sketch18
pocket14.Length = 5

sketch19 = body.newObject("Sketcher::SketchObject", "Sketch018")
sketch19.AttachmentSupport = (doc.getObject("YZ_Plane"), [""])
sketch19.MapMode = "FlatFace"
sketch19.AttachmentOffset = App.Placement(V(0, 0, 75), App.Rotation())
add_polygon(sketch19, [(-45, 42), (-65, 42), (-65, 22), (-45, 22)])
sketch19.addConstraint(Sketcher.Constraint("Horizontal", 0))
sketch19.addConstraint(Sketcher.Constraint("Vertical", 1))
sketch19.addConstraint(Sketcher.Constraint("Horizontal", 2))
sketch19.addConstraint(Sketcher.Constraint("Vertical", 3))
sketch19.addConstraint(Sketcher.Constraint("Equal", 2, 1))
sketch19.addConstraint(Sketcher.Constraint("DistanceX", 0, 2, 0, 1, 20.0))
sketch19.addConstraint(Sketcher.Constraint("DistanceY", -1, 1, 0, 2, 41.6))
sketch19.addConstraint(Sketcher.Constraint("DistanceX", 0, 2, -1, 1, 64.87))
pocket15 = body.newObject("PartDesign::Pocket", "Pocket014")
pocket15.Profile = sketch19
pocket15.Length = 5

sketch20 = body.newObject("Sketcher::SketchObject", "Sketch019")
sketch20.AttachmentSupport = (doc.getObject("YZ_Plane"), [""])
sketch20.MapMode = "FlatFace"
sketch20.AttachmentOffset = App.Placement(V(0, 0, 90), App.Rotation())
add_polygon(sketch20, [(-45, 42), (-65, 42), (-65, 22), (-45, 22)])
sketch20.addConstraint(Sketcher.Constraint("Horizontal", 0))
sketch20.addConstraint(Sketcher.Constraint("Vertical", 1))
sketch20.addConstraint(Sketcher.Constraint("Horizontal", 2))
sketch20.addConstraint(Sketcher.Constraint("Vertical", 3))
sketch20.addConstraint(Sketcher.Constraint("Equal", 2, 1))
sketch20.addConstraint(Sketcher.Constraint("DistanceX", 0, 2, 0, 1, 20.0))
sketch20.addConstraint(Sketcher.Constraint("DistanceY", -1, 1, 0, 2, 41.6))
sketch20.addConstraint(Sketcher.Constraint("DistanceX", 0, 2, -1, 1, 64.87))
pocket16 = body.newObject("PartDesign::Pocket", "Pocket015")
pocket16.Profile = sketch20
pocket16.Length = 5

sketch21 = body.newObject("Sketcher::SketchObject", "Sketch020")
sketch21.AttachmentSupport = (doc.getObject("YZ_Plane"), [""])
sketch21.MapMode = "FlatFace"
sketch21.AttachmentOffset = App.Placement(V(0, 0, -105.6), App.Rotation())
add_polygon(sketch21, [(0, 5), (-30, 5), (-30, 20), (0, 20)])
sketch21.addConstraint(Sketcher.Constraint("Horizontal", 0))
sketch21.addConstraint(Sketcher.Constraint("Vertical", 1))
sketch21.addConstraint(Sketcher.Constraint("Horizontal", 2))
sketch21.addConstraint(Sketcher.Constraint("Vertical", 3))
sketch21.addConstraint(Sketcher.Constraint("PointOnObject", 2, 2, -2))
sketch21.addConstraint(Sketcher.Constraint("DistanceX", 0, 2, 0, 1, 30.0))
sketch21.addConstraint(Sketcher.Constraint("DistanceY", 1, 1, 1, 2, 15.0))
sketch21.addConstraint(Sketcher.Constraint("DistanceY", -1, 1, 0, 2, 5.0))
pocket17 = body.newObject("PartDesign::Pocket", "Pocket016")
pocket17.Profile = sketch21
pocket17.Type = "ThroughAll"
pocket17.Reversed = True

doc.recompute()
